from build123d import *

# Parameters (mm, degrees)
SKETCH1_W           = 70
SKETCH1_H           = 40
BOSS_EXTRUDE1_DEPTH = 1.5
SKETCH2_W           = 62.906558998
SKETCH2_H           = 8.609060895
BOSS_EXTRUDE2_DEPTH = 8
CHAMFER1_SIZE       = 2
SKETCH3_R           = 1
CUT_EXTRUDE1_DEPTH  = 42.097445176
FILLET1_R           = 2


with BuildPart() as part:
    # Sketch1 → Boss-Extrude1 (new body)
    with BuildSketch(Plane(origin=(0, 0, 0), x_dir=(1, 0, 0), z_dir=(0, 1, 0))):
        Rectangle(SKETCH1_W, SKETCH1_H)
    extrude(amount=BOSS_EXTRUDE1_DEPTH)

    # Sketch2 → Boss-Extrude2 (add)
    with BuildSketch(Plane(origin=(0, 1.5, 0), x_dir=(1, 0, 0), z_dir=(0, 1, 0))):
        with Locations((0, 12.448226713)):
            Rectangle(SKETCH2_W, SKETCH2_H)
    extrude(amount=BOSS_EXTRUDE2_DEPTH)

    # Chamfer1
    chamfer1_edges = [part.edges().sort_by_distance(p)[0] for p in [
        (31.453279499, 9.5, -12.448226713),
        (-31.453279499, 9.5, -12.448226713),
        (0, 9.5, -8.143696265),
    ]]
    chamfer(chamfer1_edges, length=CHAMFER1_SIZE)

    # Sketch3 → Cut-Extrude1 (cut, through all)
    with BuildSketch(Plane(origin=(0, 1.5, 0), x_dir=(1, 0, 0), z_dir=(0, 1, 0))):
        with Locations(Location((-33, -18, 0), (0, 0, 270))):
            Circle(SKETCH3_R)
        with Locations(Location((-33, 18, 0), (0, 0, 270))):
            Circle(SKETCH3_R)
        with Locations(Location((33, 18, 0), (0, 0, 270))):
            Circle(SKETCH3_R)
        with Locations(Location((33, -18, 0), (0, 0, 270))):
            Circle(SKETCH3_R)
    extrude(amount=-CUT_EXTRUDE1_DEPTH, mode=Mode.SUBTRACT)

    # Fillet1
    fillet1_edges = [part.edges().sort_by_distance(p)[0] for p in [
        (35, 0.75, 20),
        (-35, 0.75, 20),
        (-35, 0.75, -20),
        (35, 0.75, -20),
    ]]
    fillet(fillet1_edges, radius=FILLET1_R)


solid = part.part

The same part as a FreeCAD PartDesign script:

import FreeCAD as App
import Part
import Sketcher

V = App.Vector


def edges_at(feature, points):
    """Names of the edges that pass closest to the given points."""
    edges = feature.Shape.Edges
    near = lambda p: min(range(len(edges)), key=lambda i: edges[i].distToShape(Part.Vertex(*p))[0])
    return sorted({f"Edge{near(p) + 1}" for p in points})

doc = App.newDocument("Part")
body = doc.addObject("PartDesign::Body", "Body")

sketch1 = doc.addObject("Sketcher::SketchObject", "Sketch")
body.addObject(sketch1)
sketch1.AttachmentSupport = (doc.XZ_Plane, [""])
sketch1.MapMode = "FlatFace"
sketch1.addGeometry([
    Part.LineSegment(V(-35, -20, 0), V(-35, 20, 0)),
    Part.LineSegment(V(-35, 20, 0), V(35, 20, 0)),
    Part.LineSegment(V(35, 20, 0), V(35, -20, 0)),
    Part.LineSegment(V(35, -20, 0), V(-35, -20, 0)),
], False)
sketch1.addConstraint([
    Sketcher.Constraint("Coincident", 0, 2, 1, 1),
    Sketcher.Constraint("Coincident", 1, 2, 2, 1),
    Sketcher.Constraint("Coincident", 2, 2, 3, 1),
    Sketcher.Constraint("Coincident", 3, 2, 0, 1),
    Sketcher.Constraint("Vertical", 0),
    Sketcher.Constraint("Horizontal", 1),
    Sketcher.Constraint("Vertical", 2),
    Sketcher.Constraint("Horizontal", 3),
    Sketcher.Constraint("Symmetric", 0, 2, 2, 2, -1, 1),
    Sketcher.Constraint("DistanceX", 1, 1, 1, 2, 70.0),
    Sketcher.Constraint("DistanceY", 0, 1, 0, 2, 40.0),
])
pad1 = doc.addObject("PartDesign::Pad", "Pad")
body.addObject(pad1)
pad1.Profile = sketch1
pad1.Length = 1.5
pad1.Reversed = True

sketch2 = doc.addObject("Sketcher::SketchObject", "Sketch001")
body.addObject(sketch2)
sketch2.AttachmentSupport = (doc.XZ_Plane, [""])
sketch2.MapMode = "FlatFace"
sketch2.AttachmentOffset = App.Placement(V(0, 0, -1.5), App.Rotation())
sketch2.addGeometry([
    Part.LineSegment(V(-31.453279, -16.752757, 0), V(-31.453279, -8.143696, 0)),
    Part.LineSegment(V(-31.453279, -8.143696, 0), V(31.453279, -8.143696, 0)),
    Part.LineSegment(V(31.453279, -8.143696, 0), V(31.453279, -16.752757, 0)),
    Part.LineSegment(V(31.453279, -16.752757, 0), V(-31.453279, -16.752757, 0)),
], False)
sketch2.addConstraint([
    Sketcher.Constraint("Coincident", 0, 2, 1, 1),
    Sketcher.Constraint("Coincident", 1, 2, 2, 1),
    Sketcher.Constraint("Coincident", 2, 2, 3, 1),
    Sketcher.Constraint("Coincident", 3, 2, 0, 1),
    Sketcher.Constraint("Vertical", 0),
    Sketcher.Constraint("Horizontal", 1),
    Sketcher.Constraint("Vertical", 2),
    Sketcher.Constraint("Horizontal", 3),
    Sketcher.Constraint("DistanceX", 1, 1, 1, 2, 62.906559),
    Sketcher.Constraint("DistanceY", 0, 1, 0, 2, 8.609061),
    Sketcher.Constraint("DistanceX", 0, 2, -1, 1, 31.453279),
    Sketcher.Constraint("DistanceY", 0, 2, -1, 1, 8.143696),
])
pad2 = doc.addObject("PartDesign::Pad", "Pad001")
body.addObject(pad2)
pad2.Profile = sketch2
pad2.Length = 8
pad2.Reversed = True
doc.recompute()

chamfer = doc.addObject("PartDesign::Chamfer", "Chamfer")
body.addObject(chamfer)
chamfer.Base = (pad2, edges_at(pad2, [(31.453, 9.5, -12.448), (-31.453, 9.5, -12.448), (0, 9.5, -8.144)]))
chamfer.Size = 2

sketch3 = doc.addObject("Sketcher::SketchObject", "Sketch002")
body.addObject(sketch3)
sketch3.AttachmentSupport = (doc.XZ_Plane, [""])
sketch3.MapMode = "FlatFace"
sketch3.AttachmentOffset = App.Placement(V(0, 0, -1.5), App.Rotation())
sketch3.addGeometry([
    Part.Circle(V(-33, 18, 0), V(0, 0, 1), 1),
    Part.Circle(V(-33, -18, 0), V(0, 0, 1), 1),
    Part.Circle(V(33, -18, 0), V(0, 0, 1), 1),
    Part.Circle(V(33, 18, 0), V(0, 0, 1), 1),
], False)
sketch3.addConstraint([
    Sketcher.Constraint("Equal", 0, 1),
    Sketcher.Constraint("Equal", 1, 2),
    Sketcher.Constraint("Equal", 2, 3),
    Sketcher.Constraint("Symmetric", 0, 3, 2, 3, -1, 1),
    Sketcher.Constraint("Symmetric", 1, 3, 3, 3, -1, 1),
    Sketcher.Constraint("Symmetric", 1, 3, 2, 3, -2),
    Sketcher.Constraint("Diameter", 0, 2.0),
    Sketcher.Constraint("DistanceX", 0, 3, -1, 1, 33.0),
    Sketcher.Constraint("DistanceY", -1, 1, 0, 3, 18.0),
])
pocket1 = doc.addObject("PartDesign::Pocket", "Pocket")
body.addObject(pocket1)
pocket1.Profile = sketch3
pocket1.Type = "ThroughAll"
pocket1.Reversed = True
doc.recompute()

fillet = doc.addObject("PartDesign::Fillet", "Fillet")
body.addObject(fillet)
fillet.Base = (pocket1, edges_at(pocket1, [
    (35, 0.75, 20),
    (-35, 0.75, 20),
    (-35, 0.75, -20),
    (35, 0.75, -20),
]))
fillet.Radius = 2

doc.recompute()
